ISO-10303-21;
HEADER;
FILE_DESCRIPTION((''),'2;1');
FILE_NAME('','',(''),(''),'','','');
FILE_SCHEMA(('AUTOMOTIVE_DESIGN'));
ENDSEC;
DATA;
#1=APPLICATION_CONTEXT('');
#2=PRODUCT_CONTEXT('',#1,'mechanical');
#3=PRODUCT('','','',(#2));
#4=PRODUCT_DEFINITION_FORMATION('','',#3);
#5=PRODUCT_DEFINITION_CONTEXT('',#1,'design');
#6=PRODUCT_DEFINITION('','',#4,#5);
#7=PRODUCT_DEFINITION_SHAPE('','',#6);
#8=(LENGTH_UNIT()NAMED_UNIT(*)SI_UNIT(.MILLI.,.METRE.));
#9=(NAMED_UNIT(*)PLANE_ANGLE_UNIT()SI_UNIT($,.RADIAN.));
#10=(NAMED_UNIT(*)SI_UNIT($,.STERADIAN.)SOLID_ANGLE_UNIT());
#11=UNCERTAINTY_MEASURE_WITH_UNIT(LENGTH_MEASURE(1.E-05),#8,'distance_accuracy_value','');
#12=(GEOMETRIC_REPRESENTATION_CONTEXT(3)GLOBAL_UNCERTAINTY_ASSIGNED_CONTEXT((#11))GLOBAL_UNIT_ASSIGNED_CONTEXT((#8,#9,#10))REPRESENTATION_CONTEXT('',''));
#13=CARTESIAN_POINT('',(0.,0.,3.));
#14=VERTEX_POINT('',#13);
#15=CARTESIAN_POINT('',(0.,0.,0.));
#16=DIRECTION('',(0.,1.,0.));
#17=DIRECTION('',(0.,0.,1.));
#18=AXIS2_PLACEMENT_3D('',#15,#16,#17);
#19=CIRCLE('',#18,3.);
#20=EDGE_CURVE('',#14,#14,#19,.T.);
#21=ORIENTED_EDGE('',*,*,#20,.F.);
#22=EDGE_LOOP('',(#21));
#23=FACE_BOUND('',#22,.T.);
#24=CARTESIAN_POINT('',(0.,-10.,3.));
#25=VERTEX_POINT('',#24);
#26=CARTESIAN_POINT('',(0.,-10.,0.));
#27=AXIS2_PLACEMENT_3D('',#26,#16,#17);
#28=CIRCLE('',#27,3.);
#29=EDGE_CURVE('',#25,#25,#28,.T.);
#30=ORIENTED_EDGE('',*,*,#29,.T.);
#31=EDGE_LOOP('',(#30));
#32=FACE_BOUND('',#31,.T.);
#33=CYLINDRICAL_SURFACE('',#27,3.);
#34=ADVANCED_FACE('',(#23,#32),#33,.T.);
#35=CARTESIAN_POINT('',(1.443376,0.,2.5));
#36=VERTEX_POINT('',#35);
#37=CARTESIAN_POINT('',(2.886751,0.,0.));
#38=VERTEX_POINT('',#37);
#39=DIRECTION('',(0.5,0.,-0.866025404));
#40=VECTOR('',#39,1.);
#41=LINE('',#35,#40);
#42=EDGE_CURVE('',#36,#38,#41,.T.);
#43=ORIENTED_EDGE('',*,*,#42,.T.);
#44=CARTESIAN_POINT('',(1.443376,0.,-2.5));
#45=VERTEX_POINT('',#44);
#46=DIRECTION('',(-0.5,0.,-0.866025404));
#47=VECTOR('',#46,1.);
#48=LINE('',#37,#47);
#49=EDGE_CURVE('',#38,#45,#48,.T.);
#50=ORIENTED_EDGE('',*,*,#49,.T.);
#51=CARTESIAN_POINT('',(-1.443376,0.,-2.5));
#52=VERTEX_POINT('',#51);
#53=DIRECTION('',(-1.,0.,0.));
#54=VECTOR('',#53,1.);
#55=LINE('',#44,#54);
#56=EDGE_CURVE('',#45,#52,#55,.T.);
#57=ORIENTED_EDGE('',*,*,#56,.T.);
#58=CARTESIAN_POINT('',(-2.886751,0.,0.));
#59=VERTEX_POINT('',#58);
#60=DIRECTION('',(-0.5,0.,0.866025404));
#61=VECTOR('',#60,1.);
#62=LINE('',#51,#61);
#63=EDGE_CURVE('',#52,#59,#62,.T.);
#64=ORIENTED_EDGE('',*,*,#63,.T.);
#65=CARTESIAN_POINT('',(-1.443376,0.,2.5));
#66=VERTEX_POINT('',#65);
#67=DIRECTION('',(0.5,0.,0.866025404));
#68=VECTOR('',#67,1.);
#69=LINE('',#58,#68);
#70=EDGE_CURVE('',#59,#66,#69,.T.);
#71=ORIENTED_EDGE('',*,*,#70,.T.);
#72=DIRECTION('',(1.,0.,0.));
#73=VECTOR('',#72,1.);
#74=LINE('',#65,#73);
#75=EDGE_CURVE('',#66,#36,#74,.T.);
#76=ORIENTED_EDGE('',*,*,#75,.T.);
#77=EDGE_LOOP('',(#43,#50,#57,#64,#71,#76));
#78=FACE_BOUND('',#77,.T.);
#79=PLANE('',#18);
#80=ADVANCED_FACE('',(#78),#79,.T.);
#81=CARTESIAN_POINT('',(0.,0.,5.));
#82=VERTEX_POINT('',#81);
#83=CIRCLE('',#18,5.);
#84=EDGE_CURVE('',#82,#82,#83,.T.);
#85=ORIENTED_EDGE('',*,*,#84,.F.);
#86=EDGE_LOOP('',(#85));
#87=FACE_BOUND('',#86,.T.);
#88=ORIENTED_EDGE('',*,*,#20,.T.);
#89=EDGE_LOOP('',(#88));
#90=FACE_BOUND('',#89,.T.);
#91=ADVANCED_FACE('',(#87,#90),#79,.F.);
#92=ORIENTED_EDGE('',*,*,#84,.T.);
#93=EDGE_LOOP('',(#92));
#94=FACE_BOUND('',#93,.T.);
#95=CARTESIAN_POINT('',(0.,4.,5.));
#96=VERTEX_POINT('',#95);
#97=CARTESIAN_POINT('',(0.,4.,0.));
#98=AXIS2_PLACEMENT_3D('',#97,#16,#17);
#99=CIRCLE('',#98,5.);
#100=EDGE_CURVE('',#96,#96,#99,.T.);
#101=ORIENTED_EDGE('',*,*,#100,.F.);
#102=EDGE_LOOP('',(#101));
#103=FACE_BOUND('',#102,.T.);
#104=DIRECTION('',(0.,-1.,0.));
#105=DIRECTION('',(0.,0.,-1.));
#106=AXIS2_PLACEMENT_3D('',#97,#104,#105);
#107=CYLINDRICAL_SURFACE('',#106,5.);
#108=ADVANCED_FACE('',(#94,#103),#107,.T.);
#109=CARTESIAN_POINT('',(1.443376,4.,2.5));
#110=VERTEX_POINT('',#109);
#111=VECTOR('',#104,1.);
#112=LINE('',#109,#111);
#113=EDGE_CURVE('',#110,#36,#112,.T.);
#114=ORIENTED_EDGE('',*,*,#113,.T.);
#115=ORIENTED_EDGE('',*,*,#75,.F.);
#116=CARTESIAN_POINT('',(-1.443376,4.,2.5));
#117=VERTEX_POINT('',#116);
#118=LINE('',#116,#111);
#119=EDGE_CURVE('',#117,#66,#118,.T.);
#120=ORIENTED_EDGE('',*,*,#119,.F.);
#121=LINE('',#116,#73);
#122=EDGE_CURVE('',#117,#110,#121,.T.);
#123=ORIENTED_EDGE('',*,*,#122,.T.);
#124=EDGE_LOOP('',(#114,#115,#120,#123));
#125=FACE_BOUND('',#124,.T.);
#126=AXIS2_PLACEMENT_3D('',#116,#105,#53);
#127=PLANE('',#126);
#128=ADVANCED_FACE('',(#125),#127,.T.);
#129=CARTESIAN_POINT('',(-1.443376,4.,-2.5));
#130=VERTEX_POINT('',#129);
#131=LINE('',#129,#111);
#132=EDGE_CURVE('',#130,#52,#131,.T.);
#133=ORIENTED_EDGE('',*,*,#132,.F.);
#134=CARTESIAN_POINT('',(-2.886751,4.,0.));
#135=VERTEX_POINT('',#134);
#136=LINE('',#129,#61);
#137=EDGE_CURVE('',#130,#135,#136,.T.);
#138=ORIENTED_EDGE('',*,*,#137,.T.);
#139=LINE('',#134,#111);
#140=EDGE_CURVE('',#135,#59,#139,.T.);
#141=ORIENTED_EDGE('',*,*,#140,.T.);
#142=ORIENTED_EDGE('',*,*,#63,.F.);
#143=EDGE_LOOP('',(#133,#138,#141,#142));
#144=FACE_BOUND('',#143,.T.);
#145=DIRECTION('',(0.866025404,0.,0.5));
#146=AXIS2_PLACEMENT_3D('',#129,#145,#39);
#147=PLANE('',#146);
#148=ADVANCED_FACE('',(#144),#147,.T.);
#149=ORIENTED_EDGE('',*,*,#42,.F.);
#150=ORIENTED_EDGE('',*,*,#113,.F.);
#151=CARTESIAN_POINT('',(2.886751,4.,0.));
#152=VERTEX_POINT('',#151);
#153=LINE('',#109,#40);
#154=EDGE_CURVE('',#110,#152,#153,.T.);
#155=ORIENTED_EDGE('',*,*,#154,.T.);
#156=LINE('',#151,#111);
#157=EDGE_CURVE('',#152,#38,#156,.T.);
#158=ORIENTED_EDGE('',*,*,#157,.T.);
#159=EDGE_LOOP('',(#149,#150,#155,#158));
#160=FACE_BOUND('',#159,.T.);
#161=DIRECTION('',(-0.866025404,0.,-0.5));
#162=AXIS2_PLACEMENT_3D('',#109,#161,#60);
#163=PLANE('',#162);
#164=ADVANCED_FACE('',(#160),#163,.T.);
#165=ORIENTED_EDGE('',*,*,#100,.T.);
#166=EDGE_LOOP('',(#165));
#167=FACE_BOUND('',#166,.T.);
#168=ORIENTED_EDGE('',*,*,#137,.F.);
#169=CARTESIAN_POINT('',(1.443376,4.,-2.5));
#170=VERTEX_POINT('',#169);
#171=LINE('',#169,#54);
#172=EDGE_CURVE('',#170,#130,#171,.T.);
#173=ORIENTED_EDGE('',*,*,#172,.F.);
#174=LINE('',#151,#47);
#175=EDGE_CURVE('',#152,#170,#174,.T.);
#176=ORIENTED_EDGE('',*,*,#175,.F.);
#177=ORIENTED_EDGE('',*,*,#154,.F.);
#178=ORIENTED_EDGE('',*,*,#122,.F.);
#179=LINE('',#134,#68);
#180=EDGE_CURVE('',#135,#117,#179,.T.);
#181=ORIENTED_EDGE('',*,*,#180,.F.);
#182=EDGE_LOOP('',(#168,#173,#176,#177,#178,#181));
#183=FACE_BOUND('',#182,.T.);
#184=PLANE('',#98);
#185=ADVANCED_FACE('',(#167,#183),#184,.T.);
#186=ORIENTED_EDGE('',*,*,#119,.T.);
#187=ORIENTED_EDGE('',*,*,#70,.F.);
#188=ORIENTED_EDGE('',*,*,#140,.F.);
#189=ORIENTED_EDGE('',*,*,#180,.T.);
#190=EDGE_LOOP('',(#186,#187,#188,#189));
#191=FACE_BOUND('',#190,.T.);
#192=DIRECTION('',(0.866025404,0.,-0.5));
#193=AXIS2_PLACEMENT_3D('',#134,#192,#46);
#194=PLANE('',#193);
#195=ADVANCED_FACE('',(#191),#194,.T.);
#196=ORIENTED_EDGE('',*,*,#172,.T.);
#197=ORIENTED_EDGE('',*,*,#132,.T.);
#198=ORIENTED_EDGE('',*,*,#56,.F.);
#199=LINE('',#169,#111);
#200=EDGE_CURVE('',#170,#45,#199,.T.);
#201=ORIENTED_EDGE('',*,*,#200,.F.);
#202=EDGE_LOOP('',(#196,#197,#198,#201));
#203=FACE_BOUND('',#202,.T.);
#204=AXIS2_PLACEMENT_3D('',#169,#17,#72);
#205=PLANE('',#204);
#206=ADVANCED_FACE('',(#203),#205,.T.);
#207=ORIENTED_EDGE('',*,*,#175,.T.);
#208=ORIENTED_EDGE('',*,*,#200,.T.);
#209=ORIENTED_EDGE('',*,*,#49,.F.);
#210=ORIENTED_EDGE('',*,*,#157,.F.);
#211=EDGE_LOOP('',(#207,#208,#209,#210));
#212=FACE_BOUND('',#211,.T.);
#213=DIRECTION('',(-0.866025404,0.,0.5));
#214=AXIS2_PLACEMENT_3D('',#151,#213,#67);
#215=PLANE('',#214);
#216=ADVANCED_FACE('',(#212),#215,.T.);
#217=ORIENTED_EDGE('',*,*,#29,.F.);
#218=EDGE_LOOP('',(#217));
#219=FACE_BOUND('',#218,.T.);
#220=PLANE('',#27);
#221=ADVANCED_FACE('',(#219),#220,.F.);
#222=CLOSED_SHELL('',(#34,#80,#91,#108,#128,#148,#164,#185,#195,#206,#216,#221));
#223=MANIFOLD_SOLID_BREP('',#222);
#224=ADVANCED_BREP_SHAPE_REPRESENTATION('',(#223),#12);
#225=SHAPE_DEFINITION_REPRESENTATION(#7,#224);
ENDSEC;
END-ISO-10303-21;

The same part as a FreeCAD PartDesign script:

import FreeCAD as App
import Part
import Sketcher
Q = App.Units.Quantity

doc = App.newDocument("Part")
params = doc.addObject("Spreadsheet::Sheet", "Params")
for row, (alias, value) in enumerate([
    ("sketch1_diameter", "6 mm"),
    ("pad1_length", "10 mm"),
    ("sketch2_diameter", "10 mm"),
    ("pad2_length", "4 mm"),
], start=1):
    params.set(f"A{row}", alias)
    params.set(f"B{row}", "=" + value)
    params.setAlias(f"B{row}", alias)

body = doc.addObject("PartDesign::Body", "Body")

# Sketch on XZ plane
sketch1 = doc.addObject("Sketcher::SketchObject", "Sketch")
body.addObject(sketch1)
sketch1.AttachmentSupport = (doc.XZ_Plane, [""])
sketch1.MapMode = "FlatFace"
sketch1.addGeometry(Part.Circle(App.Vector(0, 0, 0), App.Vector(0, 0, 1), 3), False)
sketch1.addConstraint([
    Sketcher.Constraint("Coincident", 0, 3, -1, 1),
    Sketcher.Constraint("Diameter", 0, Q("6 mm")),
])
sketch1.setExpression("Constraints[1]", "Params.sketch1_diameter")
pad1 = doc.addObject("PartDesign::Pad", "Pad")
body.addObject(pad1)
pad1.Profile = sketch1
pad1.setExpression("Length", "Params.pad1_length")

# Sketch on XZ plane
sketch2 = doc.addObject("Sketcher::SketchObject", "Sketch001")
body.addObject(sketch2)
sketch2.AttachmentSupport = (doc.XZ_Plane, [""])
sketch2.MapMode = "FlatFace"
sketch2.addGeometry([
    Part.Circle(App.Vector(0, 0, 0), App.Vector(0, 0, 1), 5),  # 0
    Part.LineSegment(App.Vector(1.443376, -2.5, 0), App.Vector(2.886751, 0, 0)),  # 1
    Part.LineSegment(App.Vector(2.886751, 0, 0), App.Vector(1.443376, 2.5, 0)),  # 2
    Part.LineSegment(App.Vector(1.443376, 2.5, 0), App.Vector(-1.443376, 2.5, 0)),  # 3
    Part.LineSegment(App.Vector(-1.443376, 2.5, 0), App.Vector(-2.886751, 0, 0)),  # 4
    Part.LineSegment(App.Vector(-2.886751, 0, 0), App.Vector(-1.443376, -2.5, 0)),  # 5
    Part.LineSegment(App.Vector(-1.443376, -2.5, 0), App.Vector(1.443376, -2.5, 0)),  # 6
], False)
sketch2.addConstraint([
    Sketcher.Constraint("Coincident", 1, 2, 2, 1),
    Sketcher.Constraint("Coincident", 2, 2, 3, 1),
    Sketcher.Constraint("Coincident", 3, 2, 4, 1),
    Sketcher.Constraint("Coincident", 4, 2, 5, 1),
    Sketcher.Constraint("Coincident", 5, 2, 6, 1),
    Sketcher.Constraint("Coincident", 6, 2, 1, 1),
    Sketcher.Constraint("Horizontal", 3),
    Sketcher.Constraint("Horizontal", 6),
    Sketcher.Constraint("Coincident", 0, 3, -1, 1),
    Sketcher.Constraint("Symmetric", 1, 2, 4, 2, -1, 1),
    Sketcher.Constraint("Symmetric", 2, 2, 5, 2, -1, 1),
    Sketcher.Constraint("PointOnObject", 1, 2, -1),
    Sketcher.Constraint("Parallel", 1, 4),
    Sketcher.Constraint("Vertical", 3, 2, 5, 2),
    Sketcher.Constraint("Diameter", 0, Q("10 mm")),
    Sketcher.Constraint("Angle", 1, Q("60 deg")),
    Sketcher.Constraint("DistanceY", 5, 2, 3, 2, Q("5 mm")),
    Sketcher.Constraint("DistanceX", 3, 2, 3, 1, Q("2.886751 mm")),
])
sketch2.setExpression("Constraints[14]", "Params.sketch2_diameter")
pad2 = doc.addObject("PartDesign::Pad", "Pad001")
body.addObject(pad2)
pad2.Profile = sketch2
pad2.setExpression("Length", "Params.pad2_length")
pad2.Reversed = True

doc.recompute()
